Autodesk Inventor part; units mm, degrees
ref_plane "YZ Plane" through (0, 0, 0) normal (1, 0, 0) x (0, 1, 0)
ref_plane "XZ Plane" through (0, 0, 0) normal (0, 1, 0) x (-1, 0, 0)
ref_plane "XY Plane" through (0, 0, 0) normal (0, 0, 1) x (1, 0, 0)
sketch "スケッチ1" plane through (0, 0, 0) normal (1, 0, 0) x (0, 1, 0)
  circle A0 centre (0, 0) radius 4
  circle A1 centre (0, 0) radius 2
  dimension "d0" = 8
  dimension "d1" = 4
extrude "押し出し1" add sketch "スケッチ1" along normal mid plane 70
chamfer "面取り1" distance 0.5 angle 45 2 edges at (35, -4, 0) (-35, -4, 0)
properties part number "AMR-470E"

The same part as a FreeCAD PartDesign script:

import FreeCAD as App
import Part
import Sketcher
from FreeCAD import Vector


def edges_at(feature, points):
    """Names of the edges that pass closest to the given points."""
    edges = feature.Shape.Edges
    near = lambda p: min(range(len(edges)), key=lambda i: edges[i].distToShape(Part.Vertex(*p))[0])
    return sorted({f"Edge{near(p) + 1}" for p in points})

doc = App.newDocument("Part")
body = doc.addObject("PartDesign::Body", "Body")

sketch1 = body.newObject("Sketcher::SketchObject", "Sketch")
sketch1.AttachmentSupport = (doc.getObject("YZ_Plane"), [""])
sketch1.MapMode = "FlatFace"
sketch1.addGeometry(Part.Circle(Vector(0, 0, 0), Vector(0, 0, 1), 4), False)
sketch1.addGeometry(Part.Circle(Vector(0, 0, 0), Vector(0, 0, 1), 2), False)
sketch1.addConstraint(Sketcher.Constraint("Coincident", 0, 3, -1, 1))
sketch1.addConstraint(Sketcher.Constraint("Coincident", 1, 3, -1, 1))
sketch1.addConstraint(Sketcher.Constraint("Diameter", 0, 8.0))
sketch1.addConstraint(Sketcher.Constraint("Diameter", 1, 4.0))
pad1 = body.newObject("PartDesign::Pad", "Pad")
pad1.Profile = sketch1
pad1.Length = 70
pad1.Midplane = True
doc.recompute()

chamfer = body.newObject("PartDesign::Chamfer", "Chamfer")
chamfer.Base = (pad1, edges_at(pad1, [(35, -4, 0), (-35, -4, 0)]))
chamfer.Size = 0.5

doc.recompute()
